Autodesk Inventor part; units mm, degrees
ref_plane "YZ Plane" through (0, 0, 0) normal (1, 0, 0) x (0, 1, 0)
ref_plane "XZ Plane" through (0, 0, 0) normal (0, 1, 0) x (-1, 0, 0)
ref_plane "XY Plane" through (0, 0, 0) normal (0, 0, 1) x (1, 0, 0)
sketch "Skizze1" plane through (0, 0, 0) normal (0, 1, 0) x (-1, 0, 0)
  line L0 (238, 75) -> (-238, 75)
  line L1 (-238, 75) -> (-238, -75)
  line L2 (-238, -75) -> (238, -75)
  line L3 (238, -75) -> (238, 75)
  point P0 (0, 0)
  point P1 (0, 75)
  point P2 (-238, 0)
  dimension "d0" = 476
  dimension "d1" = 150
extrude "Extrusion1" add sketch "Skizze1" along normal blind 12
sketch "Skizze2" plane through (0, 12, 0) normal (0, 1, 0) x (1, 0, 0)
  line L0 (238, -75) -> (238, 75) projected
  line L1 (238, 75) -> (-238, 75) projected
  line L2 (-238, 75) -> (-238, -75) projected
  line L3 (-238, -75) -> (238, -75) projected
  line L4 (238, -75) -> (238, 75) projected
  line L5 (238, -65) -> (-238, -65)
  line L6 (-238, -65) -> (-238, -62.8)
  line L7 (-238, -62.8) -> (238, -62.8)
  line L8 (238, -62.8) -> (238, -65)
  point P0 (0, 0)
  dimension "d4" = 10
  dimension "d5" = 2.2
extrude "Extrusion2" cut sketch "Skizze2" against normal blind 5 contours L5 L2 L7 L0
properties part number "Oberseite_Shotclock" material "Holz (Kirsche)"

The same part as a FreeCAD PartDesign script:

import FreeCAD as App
import Part
import Sketcher
from FreeCAD import Vector

doc = App.newDocument("Part")
body = doc.addObject("PartDesign::Body", "Body")

# Sketch on XZ plane
sketch1 = body.newObject("Sketcher::SketchObject", "Sketch")
sketch1.AttachmentSupport = (doc.getObject("XZ_Plane"), [""])
sketch1.MapMode = "FlatFace"
sketch1.addGeometry(Part.LineSegment(Vector(-238, -75, 0), Vector(-238, 75, 0)), False)
sketch1.addGeometry(Part.LineSegment(Vector(-238, 75, 0), Vector(238, 75, 0)), False)
sketch1.addGeometry(Part.LineSegment(Vector(238, 75, 0), Vector(238, -75, 0)), False)
sketch1.addGeometry(Part.LineSegment(Vector(238, -75, 0), Vector(-238, -75, 0)), False)
sketch1.addConstraint(Sketcher.Constraint("Coincident", 0, 2, 1, 1))
sketch1.addConstraint(Sketcher.Constraint("Coincident", 1, 2, 2, 1))
sketch1.addConstraint(Sketcher.Constraint("Coincident", 2, 2, 3, 1))
sketch1.addConstraint(Sketcher.Constraint("Coincident", 3, 2, 0, 1))
sketch1.addConstraint(Sketcher.Constraint("Vertical", 0))
sketch1.addConstraint(Sketcher.Constraint("Horizontal", 1))
sketch1.addConstraint(Sketcher.Constraint("Vertical", 2))
sketch1.addConstraint(Sketcher.Constraint("Horizontal", 3))
sketch1.addConstraint(Sketcher.Constraint("Symmetric", 0, 2, 2, 2, -1, 1))
sketch1.addConstraint(Sketcher.Constraint("DistanceX", 1, 1, 1, 2, 476.0))
sketch1.addConstraint(Sketcher.Constraint("DistanceY", 0, 1, 0, 2, 150.0))
pad1 = body.newObject("PartDesign::Pad", "Pad")
pad1.Profile = sketch1
pad1.Length = 12
pad1.Reversed = True

# Sketch on XZ plane
sketch2 = body.newObject("Sketcher::SketchObject", "Sketch001")
sketch2.AttachmentSupport = (doc.getObject("XZ_Plane"), [""])
sketch2.MapMode = "FlatFace"
sketch2.AttachmentOffset = App.Placement(Vector(0, 0, -12), App.Rotation())
sketch2.addGeometry(Part.LineSegment(Vector(-238, 65, 0), Vector(238, 65, 0)), False)
sketch2.addGeometry(Part.LineSegment(Vector(238, 65, 0), Vector(238, 62.8, 0)), False)
sketch2.addGeometry(Part.LineSegment(Vector(238, 62.8, 0), Vector(-238, 62.8, 0)), False)
sketch2.addGeometry(Part.LineSegment(Vector(-238, 62.8, 0), Vector(-238, 65, 0)), False)
sketch2.addConstraint(Sketcher.Constraint("Coincident", 0, 2, 1, 1))
sketch2.addConstraint(Sketcher.Constraint("Coincident", 1, 2, 2, 1))
sketch2.addConstraint(Sketcher.Constraint("Coincident", 2, 2, 3, 1))
sketch2.addConstraint(Sketcher.Constraint("Coincident", 3, 2, 0, 1))
sketch2.addConstraint(Sketcher.Constraint("Horizontal", 0))
sketch2.addConstraint(Sketcher.Constraint("Vertical", 1))
sketch2.addConstraint(Sketcher.Constraint("Horizontal", 2))
sketch2.addConstraint(Sketcher.Constraint("Vertical", 3))
sketch2.addConstraint(Sketcher.Constraint("DistanceY", 1, 2, 1, 1, 2.2))
sketch2.addConstraint(Sketcher.Constraint("DistanceX", 0, 1, 0, 2, 476.0))
sketch2.addConstraint(Sketcher.Constraint("DistanceX", -1, 1, 0, 2, 238.0))
sketch2.addConstraint(Sketcher.Constraint("DistanceY", -1, 1, 0, 2, 65.0))
pocket1 = body.newObject("PartDesign::Pocket", "Pocket")
pocket1.Profile = sketch2
pocket1.Length = 5
pocket1.Reversed = True

doc.recompute()
